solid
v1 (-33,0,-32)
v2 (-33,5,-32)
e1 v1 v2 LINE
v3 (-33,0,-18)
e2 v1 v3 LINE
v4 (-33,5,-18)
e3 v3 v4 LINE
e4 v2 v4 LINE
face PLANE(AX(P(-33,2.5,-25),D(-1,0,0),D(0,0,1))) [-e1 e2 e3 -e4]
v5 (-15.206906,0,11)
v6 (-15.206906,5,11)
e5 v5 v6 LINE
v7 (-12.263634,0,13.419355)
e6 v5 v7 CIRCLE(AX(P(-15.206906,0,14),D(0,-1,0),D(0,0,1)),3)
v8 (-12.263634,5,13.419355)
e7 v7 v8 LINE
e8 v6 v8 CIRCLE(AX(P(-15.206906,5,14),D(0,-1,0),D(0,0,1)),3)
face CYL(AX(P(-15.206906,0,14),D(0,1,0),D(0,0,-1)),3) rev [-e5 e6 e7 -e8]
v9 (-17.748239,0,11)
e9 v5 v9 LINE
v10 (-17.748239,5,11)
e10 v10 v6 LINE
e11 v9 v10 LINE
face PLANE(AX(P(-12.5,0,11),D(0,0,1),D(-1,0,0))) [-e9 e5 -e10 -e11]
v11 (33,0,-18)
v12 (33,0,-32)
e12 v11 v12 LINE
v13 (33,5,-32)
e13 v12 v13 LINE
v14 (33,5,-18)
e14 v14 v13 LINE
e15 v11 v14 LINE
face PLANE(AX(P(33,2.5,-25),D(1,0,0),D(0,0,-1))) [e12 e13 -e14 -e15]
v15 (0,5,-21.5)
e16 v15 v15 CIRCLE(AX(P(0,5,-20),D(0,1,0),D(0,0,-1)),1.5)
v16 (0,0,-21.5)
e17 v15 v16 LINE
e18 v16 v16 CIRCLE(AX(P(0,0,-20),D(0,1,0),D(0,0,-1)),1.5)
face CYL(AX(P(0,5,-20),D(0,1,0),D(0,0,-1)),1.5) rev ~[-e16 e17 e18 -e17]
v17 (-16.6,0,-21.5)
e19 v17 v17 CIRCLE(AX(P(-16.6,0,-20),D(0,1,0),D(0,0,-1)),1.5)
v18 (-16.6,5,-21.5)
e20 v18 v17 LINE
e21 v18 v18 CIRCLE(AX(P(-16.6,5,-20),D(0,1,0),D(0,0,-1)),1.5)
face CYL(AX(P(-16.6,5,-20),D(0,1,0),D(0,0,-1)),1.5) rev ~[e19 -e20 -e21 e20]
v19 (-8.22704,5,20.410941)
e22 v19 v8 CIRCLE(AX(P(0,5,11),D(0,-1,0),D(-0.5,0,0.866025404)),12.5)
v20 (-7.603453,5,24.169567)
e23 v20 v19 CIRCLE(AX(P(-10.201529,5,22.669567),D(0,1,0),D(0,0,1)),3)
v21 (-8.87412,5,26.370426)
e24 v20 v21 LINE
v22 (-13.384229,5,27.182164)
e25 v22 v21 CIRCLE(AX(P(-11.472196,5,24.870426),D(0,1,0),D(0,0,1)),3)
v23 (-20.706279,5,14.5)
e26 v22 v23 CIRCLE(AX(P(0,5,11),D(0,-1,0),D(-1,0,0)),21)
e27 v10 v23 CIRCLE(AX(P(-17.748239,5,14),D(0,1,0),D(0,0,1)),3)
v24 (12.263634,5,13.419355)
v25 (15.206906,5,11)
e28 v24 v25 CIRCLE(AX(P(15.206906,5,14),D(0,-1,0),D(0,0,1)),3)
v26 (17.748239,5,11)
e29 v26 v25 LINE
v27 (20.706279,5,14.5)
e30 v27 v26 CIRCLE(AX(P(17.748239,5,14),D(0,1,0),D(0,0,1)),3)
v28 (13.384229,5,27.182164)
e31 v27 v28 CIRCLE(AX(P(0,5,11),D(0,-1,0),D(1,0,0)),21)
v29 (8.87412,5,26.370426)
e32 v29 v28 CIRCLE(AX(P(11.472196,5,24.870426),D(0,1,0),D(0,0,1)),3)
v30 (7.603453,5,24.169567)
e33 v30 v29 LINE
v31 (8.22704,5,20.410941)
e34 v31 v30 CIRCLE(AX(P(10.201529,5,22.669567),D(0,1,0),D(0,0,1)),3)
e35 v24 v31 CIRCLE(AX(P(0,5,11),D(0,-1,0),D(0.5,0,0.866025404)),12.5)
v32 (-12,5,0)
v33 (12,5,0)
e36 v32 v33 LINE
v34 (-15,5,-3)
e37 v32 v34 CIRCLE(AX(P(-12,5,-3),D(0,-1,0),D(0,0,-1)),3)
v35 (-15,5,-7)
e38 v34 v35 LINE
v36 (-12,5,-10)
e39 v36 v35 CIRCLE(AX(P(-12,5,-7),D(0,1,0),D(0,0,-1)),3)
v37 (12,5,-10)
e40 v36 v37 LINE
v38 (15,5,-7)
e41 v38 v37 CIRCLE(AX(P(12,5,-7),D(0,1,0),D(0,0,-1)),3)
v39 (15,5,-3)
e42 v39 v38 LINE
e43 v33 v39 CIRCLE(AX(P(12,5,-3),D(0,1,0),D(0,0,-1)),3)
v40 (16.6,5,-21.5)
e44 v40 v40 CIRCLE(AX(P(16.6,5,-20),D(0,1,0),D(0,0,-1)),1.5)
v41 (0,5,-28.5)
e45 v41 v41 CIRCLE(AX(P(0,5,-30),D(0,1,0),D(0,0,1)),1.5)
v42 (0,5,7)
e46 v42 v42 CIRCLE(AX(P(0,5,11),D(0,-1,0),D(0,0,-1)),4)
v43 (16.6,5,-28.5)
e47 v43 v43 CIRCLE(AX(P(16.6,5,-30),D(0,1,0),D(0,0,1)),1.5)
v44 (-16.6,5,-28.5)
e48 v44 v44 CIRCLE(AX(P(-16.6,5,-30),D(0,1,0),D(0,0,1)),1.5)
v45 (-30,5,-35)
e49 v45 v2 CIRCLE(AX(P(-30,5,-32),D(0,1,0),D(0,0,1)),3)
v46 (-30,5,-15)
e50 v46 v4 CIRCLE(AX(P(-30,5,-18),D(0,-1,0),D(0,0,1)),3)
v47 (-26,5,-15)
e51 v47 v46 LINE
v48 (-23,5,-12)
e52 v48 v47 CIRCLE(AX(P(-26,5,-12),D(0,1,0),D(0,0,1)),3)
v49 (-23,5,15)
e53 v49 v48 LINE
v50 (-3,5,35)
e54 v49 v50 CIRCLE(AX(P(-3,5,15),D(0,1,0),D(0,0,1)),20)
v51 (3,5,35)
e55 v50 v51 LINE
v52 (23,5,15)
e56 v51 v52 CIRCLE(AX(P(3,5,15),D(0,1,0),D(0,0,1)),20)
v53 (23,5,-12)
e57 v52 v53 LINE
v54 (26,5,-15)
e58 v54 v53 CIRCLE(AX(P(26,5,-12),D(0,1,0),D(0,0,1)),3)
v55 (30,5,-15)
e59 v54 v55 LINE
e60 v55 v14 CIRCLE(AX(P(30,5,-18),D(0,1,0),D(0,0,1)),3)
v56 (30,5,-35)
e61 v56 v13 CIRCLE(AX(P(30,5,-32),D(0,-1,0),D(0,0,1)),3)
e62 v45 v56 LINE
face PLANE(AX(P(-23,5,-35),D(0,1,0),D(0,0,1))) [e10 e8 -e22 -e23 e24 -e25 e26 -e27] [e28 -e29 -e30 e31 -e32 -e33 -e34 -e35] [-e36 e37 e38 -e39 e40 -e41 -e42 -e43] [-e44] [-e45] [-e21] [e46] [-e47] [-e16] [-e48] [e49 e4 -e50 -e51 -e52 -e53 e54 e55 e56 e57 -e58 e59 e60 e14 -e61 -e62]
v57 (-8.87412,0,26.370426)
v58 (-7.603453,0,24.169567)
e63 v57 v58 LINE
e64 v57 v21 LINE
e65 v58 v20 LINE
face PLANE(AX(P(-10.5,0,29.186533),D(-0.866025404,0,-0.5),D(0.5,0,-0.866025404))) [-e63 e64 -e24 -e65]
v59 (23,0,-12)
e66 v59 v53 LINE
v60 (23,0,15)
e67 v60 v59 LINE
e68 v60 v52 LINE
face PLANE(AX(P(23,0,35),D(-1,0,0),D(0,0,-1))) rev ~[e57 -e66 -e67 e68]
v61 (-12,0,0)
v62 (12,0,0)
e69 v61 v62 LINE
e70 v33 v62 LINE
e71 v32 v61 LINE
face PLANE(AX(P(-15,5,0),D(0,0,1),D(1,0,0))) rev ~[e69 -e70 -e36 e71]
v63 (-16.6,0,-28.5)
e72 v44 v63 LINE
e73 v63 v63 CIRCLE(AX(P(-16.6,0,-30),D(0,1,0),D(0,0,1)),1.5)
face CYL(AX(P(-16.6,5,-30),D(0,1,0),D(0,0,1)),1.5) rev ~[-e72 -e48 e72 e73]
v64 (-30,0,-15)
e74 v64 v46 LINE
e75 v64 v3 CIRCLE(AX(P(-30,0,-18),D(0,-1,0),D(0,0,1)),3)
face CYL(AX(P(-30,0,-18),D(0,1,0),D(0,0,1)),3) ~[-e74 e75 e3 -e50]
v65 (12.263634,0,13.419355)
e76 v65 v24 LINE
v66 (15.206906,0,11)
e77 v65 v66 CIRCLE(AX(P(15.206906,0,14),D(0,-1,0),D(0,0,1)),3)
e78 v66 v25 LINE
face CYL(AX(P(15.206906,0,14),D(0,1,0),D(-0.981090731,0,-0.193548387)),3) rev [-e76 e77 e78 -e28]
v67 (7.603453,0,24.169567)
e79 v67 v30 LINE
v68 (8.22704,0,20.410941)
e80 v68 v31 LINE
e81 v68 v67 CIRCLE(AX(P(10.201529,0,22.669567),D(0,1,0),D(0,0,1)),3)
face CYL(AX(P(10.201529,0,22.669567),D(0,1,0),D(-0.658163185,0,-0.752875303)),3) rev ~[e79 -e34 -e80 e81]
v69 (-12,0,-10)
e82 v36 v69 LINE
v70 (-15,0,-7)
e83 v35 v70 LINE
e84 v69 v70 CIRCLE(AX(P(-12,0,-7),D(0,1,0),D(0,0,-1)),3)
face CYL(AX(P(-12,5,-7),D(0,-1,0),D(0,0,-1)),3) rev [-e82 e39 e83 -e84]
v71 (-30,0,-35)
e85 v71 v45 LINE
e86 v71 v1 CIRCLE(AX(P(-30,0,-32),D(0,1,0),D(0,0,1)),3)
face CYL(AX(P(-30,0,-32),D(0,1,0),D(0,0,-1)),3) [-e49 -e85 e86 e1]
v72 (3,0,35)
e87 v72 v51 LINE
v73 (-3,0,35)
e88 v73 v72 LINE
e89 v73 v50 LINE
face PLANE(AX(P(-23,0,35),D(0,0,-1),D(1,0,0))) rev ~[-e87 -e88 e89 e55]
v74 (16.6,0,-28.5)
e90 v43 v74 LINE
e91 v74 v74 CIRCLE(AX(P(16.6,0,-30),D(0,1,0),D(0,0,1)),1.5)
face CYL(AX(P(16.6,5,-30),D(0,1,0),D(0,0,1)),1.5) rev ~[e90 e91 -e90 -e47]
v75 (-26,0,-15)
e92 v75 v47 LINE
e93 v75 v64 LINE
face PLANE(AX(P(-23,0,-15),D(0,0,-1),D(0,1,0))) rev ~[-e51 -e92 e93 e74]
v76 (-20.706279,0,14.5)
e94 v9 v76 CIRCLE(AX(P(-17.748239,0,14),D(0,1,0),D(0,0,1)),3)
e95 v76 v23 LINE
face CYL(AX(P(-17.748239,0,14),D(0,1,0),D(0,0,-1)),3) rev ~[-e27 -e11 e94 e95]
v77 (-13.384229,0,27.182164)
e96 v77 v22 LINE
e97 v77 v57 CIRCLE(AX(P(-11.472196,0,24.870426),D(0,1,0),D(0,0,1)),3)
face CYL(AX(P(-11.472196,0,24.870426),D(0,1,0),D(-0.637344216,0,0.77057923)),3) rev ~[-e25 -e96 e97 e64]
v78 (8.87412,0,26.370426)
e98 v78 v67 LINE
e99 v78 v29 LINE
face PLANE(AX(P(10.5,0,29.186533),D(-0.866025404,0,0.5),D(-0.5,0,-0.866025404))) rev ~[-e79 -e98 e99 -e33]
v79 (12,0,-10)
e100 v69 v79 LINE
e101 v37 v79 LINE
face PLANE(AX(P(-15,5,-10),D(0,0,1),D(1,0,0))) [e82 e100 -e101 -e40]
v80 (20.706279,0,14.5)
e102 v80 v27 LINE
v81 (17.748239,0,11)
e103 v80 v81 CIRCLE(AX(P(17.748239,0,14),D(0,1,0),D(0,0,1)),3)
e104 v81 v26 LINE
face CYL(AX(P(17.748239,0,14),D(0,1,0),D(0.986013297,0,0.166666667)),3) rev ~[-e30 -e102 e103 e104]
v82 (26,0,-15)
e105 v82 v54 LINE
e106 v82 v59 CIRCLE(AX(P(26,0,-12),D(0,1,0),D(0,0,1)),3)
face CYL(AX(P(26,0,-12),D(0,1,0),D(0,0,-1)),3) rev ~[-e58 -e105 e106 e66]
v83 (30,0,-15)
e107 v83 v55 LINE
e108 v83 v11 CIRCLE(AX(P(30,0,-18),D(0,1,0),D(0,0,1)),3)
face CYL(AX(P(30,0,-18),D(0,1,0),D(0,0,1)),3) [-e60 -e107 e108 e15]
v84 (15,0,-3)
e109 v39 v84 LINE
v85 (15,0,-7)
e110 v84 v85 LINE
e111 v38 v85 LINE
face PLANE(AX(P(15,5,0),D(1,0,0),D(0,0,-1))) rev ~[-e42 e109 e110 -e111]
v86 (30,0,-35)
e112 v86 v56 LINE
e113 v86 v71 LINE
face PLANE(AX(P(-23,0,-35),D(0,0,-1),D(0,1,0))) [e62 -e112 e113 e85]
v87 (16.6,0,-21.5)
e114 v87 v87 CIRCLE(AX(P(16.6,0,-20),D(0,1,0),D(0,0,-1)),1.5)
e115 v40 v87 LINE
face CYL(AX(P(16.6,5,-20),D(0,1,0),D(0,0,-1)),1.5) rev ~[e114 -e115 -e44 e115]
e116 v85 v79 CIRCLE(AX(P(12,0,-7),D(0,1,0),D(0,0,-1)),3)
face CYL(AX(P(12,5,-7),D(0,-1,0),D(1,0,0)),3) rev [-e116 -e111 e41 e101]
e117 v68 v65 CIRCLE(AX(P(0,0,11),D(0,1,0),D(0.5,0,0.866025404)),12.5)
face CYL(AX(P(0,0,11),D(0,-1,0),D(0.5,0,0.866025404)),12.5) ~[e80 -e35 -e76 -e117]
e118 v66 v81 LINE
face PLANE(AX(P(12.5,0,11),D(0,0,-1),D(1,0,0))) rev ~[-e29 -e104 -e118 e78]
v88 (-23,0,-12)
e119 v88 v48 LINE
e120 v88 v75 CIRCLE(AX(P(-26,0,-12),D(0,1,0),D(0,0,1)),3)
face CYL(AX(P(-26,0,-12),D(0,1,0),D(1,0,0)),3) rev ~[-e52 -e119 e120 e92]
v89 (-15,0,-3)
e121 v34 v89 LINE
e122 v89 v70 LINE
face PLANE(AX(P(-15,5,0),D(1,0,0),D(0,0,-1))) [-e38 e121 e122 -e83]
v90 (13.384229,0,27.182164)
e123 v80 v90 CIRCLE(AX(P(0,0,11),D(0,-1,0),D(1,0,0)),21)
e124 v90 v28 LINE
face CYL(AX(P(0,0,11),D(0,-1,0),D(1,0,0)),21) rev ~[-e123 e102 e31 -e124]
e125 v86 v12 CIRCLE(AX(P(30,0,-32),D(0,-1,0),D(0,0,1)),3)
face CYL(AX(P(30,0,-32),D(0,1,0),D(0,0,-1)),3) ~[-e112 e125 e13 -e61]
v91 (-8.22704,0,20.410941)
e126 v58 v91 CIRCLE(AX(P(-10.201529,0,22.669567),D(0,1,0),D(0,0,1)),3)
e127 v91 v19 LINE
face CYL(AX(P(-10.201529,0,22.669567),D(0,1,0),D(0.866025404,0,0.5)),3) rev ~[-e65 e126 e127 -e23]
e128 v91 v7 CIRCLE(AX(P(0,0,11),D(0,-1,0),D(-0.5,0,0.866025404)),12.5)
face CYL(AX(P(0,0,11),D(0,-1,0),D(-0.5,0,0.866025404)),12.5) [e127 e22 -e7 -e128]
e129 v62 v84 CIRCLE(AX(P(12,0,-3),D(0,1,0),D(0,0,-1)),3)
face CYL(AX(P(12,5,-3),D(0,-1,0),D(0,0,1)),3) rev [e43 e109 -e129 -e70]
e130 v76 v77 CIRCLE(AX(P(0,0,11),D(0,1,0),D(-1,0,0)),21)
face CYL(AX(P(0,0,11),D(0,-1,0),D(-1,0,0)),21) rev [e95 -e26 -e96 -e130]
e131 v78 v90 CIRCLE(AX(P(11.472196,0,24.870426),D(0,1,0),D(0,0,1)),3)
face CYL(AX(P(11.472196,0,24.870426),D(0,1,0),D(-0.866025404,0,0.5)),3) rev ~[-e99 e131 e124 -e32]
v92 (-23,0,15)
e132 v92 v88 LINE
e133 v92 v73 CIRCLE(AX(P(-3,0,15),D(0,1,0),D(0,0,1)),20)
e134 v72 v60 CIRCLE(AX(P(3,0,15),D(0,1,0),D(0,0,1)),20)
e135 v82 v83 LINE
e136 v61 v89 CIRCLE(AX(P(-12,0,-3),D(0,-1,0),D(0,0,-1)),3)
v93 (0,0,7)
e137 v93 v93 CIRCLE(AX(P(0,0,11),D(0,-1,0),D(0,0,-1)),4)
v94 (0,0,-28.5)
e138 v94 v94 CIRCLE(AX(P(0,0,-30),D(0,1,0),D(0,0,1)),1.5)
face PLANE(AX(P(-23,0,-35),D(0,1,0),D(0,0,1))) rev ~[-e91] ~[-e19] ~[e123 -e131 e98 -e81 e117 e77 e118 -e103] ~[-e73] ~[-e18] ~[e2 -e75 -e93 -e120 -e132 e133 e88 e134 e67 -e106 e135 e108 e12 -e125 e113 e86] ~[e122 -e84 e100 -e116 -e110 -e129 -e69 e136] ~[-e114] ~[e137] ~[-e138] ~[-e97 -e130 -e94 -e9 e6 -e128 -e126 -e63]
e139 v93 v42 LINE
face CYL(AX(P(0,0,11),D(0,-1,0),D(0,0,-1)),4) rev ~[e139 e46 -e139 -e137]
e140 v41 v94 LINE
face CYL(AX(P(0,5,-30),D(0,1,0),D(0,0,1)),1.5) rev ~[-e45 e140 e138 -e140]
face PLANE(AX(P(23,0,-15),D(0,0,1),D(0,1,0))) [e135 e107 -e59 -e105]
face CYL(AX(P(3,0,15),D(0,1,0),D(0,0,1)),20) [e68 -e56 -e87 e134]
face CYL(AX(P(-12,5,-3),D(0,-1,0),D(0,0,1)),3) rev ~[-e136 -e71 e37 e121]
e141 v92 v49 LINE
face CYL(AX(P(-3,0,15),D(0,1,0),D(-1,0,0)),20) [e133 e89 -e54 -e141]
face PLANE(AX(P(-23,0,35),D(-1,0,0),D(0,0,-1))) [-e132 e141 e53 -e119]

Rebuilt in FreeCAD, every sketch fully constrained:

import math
import FreeCAD as App
import Part
import Sketcher

V = App.Vector
Q = App.Units.Quantity


def edges_at(feature, points):
    """Names of the edges that pass closest to the given points."""
    edges = feature.Shape.Edges
    near = lambda p: min(range(len(edges)), key=lambda i: edges[i].distToShape(Part.Vertex(*p))[0])
    return sorted({f"Edge{near(p) + 1}" for p in points})


def add_polygon(sketch, points):
    """Adds a closed chain of lines whose ends are joined by coincident constraints."""
    first, n = sketch.GeometryCount, len(points)
    for a, b in zip(points, points[1:] + points[:1]):
        sketch.addGeometry(Part.LineSegment(App.Vector(*a, 0), App.Vector(*b, 0)), False)
    for i in range(n):
        sketch.addConstraint(Sketcher.Constraint("Coincident", first + i, 2, first + (i + 1) % n, 1))

doc = App.newDocument("Part")
body = doc.addObject("PartDesign::Body", "Body")

sketch1 = body.newObject("Sketcher::SketchObject", "Sketch")
sketch1.AttachmentSupport = (doc.getObject("XZ_Plane"), [""])
sketch1.MapMode = "FlatFace"
add_polygon(sketch1, [(-23, -35), (-23, 35), (23, 35), (23, -35)])
sketch1.addConstraint([
    Sketcher.Constraint("Vertical", 0),
    Sketcher.Constraint("Horizontal", 1),
    Sketcher.Constraint("Vertical", 2),
    Sketcher.Constraint("Horizontal", 3),
    Sketcher.Constraint("Symmetric", 0, 2, 2, 2, -1, 1),
    Sketcher.Constraint("DistanceX", 1, 1, 1, 2, 46.0),
    Sketcher.Constraint("DistanceY", 0, 1, 0, 2, 70.0),
])
pad1 = body.newObject("PartDesign::Pad", "Pad")
pad1.Profile = sketch1
pad1.Length = 5
pad1.Reversed = True

sketch2 = body.newObject("Sketcher::SketchObject", "Sketch001")
sketch2.AttachmentSupport = (doc.getObject("XZ_Plane"), [""])
sketch2.MapMode = "FlatFace"
sketch2.addGeometry(Part.Circle(V(0, 11, 0), V(0, 0, 1), 4), False)
sketch2.addConstraint([
    Sketcher.Constraint("PointOnObject", 0, 3, -2),
    Sketcher.Constraint("Diameter", 0, 8.0),
    Sketcher.Constraint("DistanceY", -1, 1, 0, 3, 11.0),
])
pocket1 = body.newObject("PartDesign::Pocket", "Pocket")
pocket1.Profile = sketch2
pocket1.Type = "ThroughAll"
doc.recompute()

fillet = body.newObject("PartDesign::Fillet", "Fillet")
fillet.Base = (pocket1, edges_at(pocket1, [(23, 2.5, 35), (-23, 2.5, 35)]))
fillet.Radius = 20

sketch3 = body.newObject("Sketcher::SketchObject", "Sketch002")
sketch3.AttachmentSupport = (doc.getObject("XZ_Plane"), [""])
sketch3.MapMode = "FlatFace"
sketch3.addGeometry([
    Part.LineSegment(V(12.5, 11, 0), V(21, 11, 0)),
    Part.ArcOfCircle(Part.Circle(V(0, 11, 0), V(0, 0, 1), 21), math.radians(0), math.radians(60)),
    Part.LineSegment(V(10.5, 29.186533, 0), V(6.25, 21.825318, 0)),
    Part.ArcOfCircle(Part.Circle(V(0, 11, 0), V(0, 0, 1), 12.5), math.radians(0), math.radians(60)),
    Part.LineSegment(V(-21, 11, 0), V(-12.5, 11, 0)),
    Part.ArcOfCircle(Part.Circle(V(0, 11, 0), V(0, 0, 1), 12.5), math.radians(120), math.radians(180)),
    Part.LineSegment(V(-6.25, 21.825318, 0), V(-10.5, 29.186533, 0)),
    Part.ArcOfCircle(Part.Circle(V(0, 11, 0), V(0, 0, 1), 21), math.radians(120), math.radians(180)),
], False)
sketch3.addConstraint([
    Sketcher.Constraint("Coincident", 0, 2, 1, 1),
    Sketcher.Constraint("Coincident", 1, 2, 2, 1),
    Sketcher.Constraint("Coincident", 2, 2, 3, 2),
    Sketcher.Constraint("Coincident", 3, 1, 0, 1),
    Sketcher.Constraint("Coincident", 4, 2, 5, 2),
    Sketcher.Constraint("Coincident", 5, 1, 6, 1),
    Sketcher.Constraint("Coincident", 6, 2, 7, 1),
    Sketcher.Constraint("Coincident", 7, 2, 4, 1),
    Sketcher.Constraint("Horizontal", 0),
    Sketcher.Constraint("Horizontal", 4),
    Sketcher.Constraint("Coincident", 3, 3, 1, 3),
    Sketcher.Constraint("Coincident", 5, 3, 1, 3),
    Sketcher.Constraint("Coincident", 7, 3, 1, 3),
    Sketcher.Constraint("Equal", 3, 5),
    Sketcher.Constraint("Equal", 1, 7),
    Sketcher.Constraint("Symmetric", 3, 1, 4, 2, -2),
    Sketcher.Constraint("Horizontal", 7, 3, 0, 2),
    Sketcher.Constraint("Horizontal", 2, 2, 5, 1),
    Sketcher.Constraint("Horizontal", 1, 2, 6, 2),
    Sketcher.Constraint("Radius", 1, 21.0),
    Sketcher.Constraint("Radius", 3, 12.5),
    Sketcher.Constraint("Angle", 2, Q("-120 deg")),
    Sketcher.Constraint("DistanceY", -1, 1, 1, 3, 11.0),
    Sketcher.Constraint("DistanceX", 4, 2, 6, 2, 2.0),
])
pocket2 = body.newObject("PartDesign::Pocket", "Pocket001")
pocket2.Profile = sketch3
pocket2.Type = "ThroughAll"
doc.recompute()

fillet2 = body.newObject("PartDesign::Fillet", "Fillet001")
fillet2.Base = (pocket2, edges_at(pocket2, [
    (-6.25, 2.5, 21.825),
    (-12.5, 2.5, 11),
    (-21, 2.5, 11),
    (-10.5, 2.5, 29.187),
    (12.5, 2.5, 11),
    (6.25, 2.5, 21.825),
    (10.5, 2.5, 29.187),
    (21, 2.5, 11),
]))
fillet2.Radius = 3

sketch4 = body.newObject("Sketcher::SketchObject", "Sketch003")
sketch4.AttachmentSupport = (doc.getObject("YZ_Plane"), [""])
sketch4.MapMode = "FlatFace"
sketch4.AttachmentOffset = App.Placement(V(0, 0, 23), App.Rotation())
add_polygon(sketch4, [(5, -15), (0, -15), (0, -35), (5, -35)])
sketch4.addConstraint([
    Sketcher.Constraint("Horizontal", 0),
    Sketcher.Constraint("Vertical", 1),
    Sketcher.Constraint("Horizontal", 2),
    Sketcher.Constraint("Vertical", 3),
    Sketcher.Constraint("PointOnObject", 0, 2, -2),
    Sketcher.Constraint("DistanceX", 0, 2, 0, 1, 5.0),
    Sketcher.Constraint("DistanceY", 1, 2, 1, 1, 20.0),
    Sketcher.Constraint("DistanceY", 0, 2, -1, 1, 15.0),
])
pad2 = body.newObject("PartDesign::Pad", "Pad001")
pad2.Profile = sketch4
pad2.Length = 10

sketch5 = body.newObject("Sketcher::SketchObject", "Sketch004")
sketch5.AttachmentSupport = (doc.getObject("YZ_Plane"), [""])
sketch5.MapMode = "FlatFace"
sketch5.AttachmentOffset = App.Placement(V(0, 0, -23), App.Rotation())
add_polygon(sketch5, [(5, -35), (0, -35), (0, -15), (5, -15)])
sketch5.addConstraint([
    Sketcher.Constraint("Horizontal", 0),
    Sketcher.Constraint("Vertical", 1),
    Sketcher.Constraint("Horizontal", 2),
    Sketcher.Constraint("Vertical", 3),
    Sketcher.Constraint("PointOnObject", 0, 2, -2),
    Sketcher.Constraint("DistanceX", 0, 2, 0, 1, 5.0),
    Sketcher.Constraint("DistanceY", 1, 1, 1, 2, 20.0),
    Sketcher.Constraint("DistanceY", 0, 2, -1, 1, 35.0),
])
pad3 = body.newObject("PartDesign::Pad", "Pad002")
pad3.Profile = sketch5
pad3.Length = 10
pad3.Reversed = True
doc.recompute()

fillet3 = body.newObject("PartDesign::Fillet", "Fillet002")
fillet3.Base = (pad3, edges_at(pad3, [
    (23, 2.5, -15),
    (33, 2.5, -35),
    (33, 2.5, -15),
    (-23, 2.5, -15),
    (-33, 2.5, -35),
    (-33, 2.5, -15),
]))
fillet3.Radius = 3

sketch6 = body.newObject("Sketcher::SketchObject", "Sketch005")
sketch6.AttachmentSupport = (doc.getObject("XZ_Plane"), [""])
sketch6.MapMode = "FlatFace"
sketch6.AttachmentOffset = App.Placement(V(0, 0, -5), App.Rotation())
sketch6.addGeometry([
    Part.Circle(V(-16.6, -30, 0), V(0, 0, 1), 1.5),
    Part.Circle(V(0, -30, 0), V(0, 0, 1), 1.5),
    Part.Circle(V(16.6, -30, 0), V(0, 0, 1), 1.5),
    Part.Circle(V(16.6, -20, 0), V(0, 0, 1), 1.5),
    Part.Circle(V(0, -20, 0), V(0, 0, 1), 1.5),
    Part.Circle(V(-16.6, -20, 0), V(0, 0, 1), 1.5),
], False)
sketch6.addConstraint([
    Sketcher.Constraint("Equal", 0, 1),
    Sketcher.Constraint("Equal", 1, 2),
    Sketcher.Constraint("Equal", 2, 3),
    Sketcher.Constraint("Equal", 3, 4),
    Sketcher.Constraint("Equal", 4, 5),
    Sketcher.Constraint("Symmetric", 0, 3, 2, 3, -2),
    Sketcher.Constraint("Symmetric", 3, 3, 5, 3, -2),
    Sketcher.Constraint("PointOnObject", 1, 3, -2),
    Sketcher.Constraint("PointOnObject", 4, 3, -2),
    Sketcher.Constraint("Horizontal", 0, 3, 1, 3),
    Sketcher.Constraint("Horizontal", 3, 3, 4, 3),
    Sketcher.Constraint("Vertical", 2, 3, 3, 3),
    Sketcher.Constraint("Diameter", 0, 3.0),
    Sketcher.Constraint("DistanceY", 0, 3, -1, 1, 30.0),
    Sketcher.Constraint("DistanceY", 3, 3, -1, 1, 20.0),
    Sketcher.Constraint("DistanceX", 0, 3, -1, 1, 16.6),
])
pocket3 = body.newObject("PartDesign::Pocket", "Pocket002")
pocket3.Profile = sketch6
pocket3.Type = "ThroughAll"
pocket3.Reversed = True

sketch7 = body.newObject("Sketcher::SketchObject", "Sketch006")
sketch7.AttachmentSupport = (doc.getObject("XZ_Plane"), [""])
sketch7.MapMode = "FlatFace"
sketch7.AttachmentOffset = App.Placement(V(0, 0, -5), App.Rotation())
add_polygon(sketch7, [(-15, -10), (-15, 0), (15, 0), (15, -10)])
sketch7.addConstraint([
    Sketcher.Constraint("Vertical", 0),
    Sketcher.Constraint("Horizontal", 1),
    Sketcher.Constraint("Vertical", 2),
    Sketcher.Constraint("Horizontal", 3),
    Sketcher.Constraint("Symmetric", 0, 2, 1, 2, -1, 1),
    Sketcher.Constraint("DistanceX", 1, 1, 1, 2, 30.0),
    Sketcher.Constraint("DistanceY", 0, 1, 0, 2, 10.0),
])
pocket4 = body.newObject("PartDesign::Pocket", "Pocket003")
pocket4.Profile = sketch7
pocket4.Type = "ThroughAll"
pocket4.Reversed = True
doc.recompute()

fillet4 = body.newObject("PartDesign::Fillet", "Fillet003")
fillet4.Base = (pocket4, edges_at(pocket4, [
    (15, 2.5, -10),
    (15, 2.5, 0),
    (-15, 2.5, 0),
    (-15, 2.5, -10),
]))
fillet4.Radius = 3

doc.recompute()
